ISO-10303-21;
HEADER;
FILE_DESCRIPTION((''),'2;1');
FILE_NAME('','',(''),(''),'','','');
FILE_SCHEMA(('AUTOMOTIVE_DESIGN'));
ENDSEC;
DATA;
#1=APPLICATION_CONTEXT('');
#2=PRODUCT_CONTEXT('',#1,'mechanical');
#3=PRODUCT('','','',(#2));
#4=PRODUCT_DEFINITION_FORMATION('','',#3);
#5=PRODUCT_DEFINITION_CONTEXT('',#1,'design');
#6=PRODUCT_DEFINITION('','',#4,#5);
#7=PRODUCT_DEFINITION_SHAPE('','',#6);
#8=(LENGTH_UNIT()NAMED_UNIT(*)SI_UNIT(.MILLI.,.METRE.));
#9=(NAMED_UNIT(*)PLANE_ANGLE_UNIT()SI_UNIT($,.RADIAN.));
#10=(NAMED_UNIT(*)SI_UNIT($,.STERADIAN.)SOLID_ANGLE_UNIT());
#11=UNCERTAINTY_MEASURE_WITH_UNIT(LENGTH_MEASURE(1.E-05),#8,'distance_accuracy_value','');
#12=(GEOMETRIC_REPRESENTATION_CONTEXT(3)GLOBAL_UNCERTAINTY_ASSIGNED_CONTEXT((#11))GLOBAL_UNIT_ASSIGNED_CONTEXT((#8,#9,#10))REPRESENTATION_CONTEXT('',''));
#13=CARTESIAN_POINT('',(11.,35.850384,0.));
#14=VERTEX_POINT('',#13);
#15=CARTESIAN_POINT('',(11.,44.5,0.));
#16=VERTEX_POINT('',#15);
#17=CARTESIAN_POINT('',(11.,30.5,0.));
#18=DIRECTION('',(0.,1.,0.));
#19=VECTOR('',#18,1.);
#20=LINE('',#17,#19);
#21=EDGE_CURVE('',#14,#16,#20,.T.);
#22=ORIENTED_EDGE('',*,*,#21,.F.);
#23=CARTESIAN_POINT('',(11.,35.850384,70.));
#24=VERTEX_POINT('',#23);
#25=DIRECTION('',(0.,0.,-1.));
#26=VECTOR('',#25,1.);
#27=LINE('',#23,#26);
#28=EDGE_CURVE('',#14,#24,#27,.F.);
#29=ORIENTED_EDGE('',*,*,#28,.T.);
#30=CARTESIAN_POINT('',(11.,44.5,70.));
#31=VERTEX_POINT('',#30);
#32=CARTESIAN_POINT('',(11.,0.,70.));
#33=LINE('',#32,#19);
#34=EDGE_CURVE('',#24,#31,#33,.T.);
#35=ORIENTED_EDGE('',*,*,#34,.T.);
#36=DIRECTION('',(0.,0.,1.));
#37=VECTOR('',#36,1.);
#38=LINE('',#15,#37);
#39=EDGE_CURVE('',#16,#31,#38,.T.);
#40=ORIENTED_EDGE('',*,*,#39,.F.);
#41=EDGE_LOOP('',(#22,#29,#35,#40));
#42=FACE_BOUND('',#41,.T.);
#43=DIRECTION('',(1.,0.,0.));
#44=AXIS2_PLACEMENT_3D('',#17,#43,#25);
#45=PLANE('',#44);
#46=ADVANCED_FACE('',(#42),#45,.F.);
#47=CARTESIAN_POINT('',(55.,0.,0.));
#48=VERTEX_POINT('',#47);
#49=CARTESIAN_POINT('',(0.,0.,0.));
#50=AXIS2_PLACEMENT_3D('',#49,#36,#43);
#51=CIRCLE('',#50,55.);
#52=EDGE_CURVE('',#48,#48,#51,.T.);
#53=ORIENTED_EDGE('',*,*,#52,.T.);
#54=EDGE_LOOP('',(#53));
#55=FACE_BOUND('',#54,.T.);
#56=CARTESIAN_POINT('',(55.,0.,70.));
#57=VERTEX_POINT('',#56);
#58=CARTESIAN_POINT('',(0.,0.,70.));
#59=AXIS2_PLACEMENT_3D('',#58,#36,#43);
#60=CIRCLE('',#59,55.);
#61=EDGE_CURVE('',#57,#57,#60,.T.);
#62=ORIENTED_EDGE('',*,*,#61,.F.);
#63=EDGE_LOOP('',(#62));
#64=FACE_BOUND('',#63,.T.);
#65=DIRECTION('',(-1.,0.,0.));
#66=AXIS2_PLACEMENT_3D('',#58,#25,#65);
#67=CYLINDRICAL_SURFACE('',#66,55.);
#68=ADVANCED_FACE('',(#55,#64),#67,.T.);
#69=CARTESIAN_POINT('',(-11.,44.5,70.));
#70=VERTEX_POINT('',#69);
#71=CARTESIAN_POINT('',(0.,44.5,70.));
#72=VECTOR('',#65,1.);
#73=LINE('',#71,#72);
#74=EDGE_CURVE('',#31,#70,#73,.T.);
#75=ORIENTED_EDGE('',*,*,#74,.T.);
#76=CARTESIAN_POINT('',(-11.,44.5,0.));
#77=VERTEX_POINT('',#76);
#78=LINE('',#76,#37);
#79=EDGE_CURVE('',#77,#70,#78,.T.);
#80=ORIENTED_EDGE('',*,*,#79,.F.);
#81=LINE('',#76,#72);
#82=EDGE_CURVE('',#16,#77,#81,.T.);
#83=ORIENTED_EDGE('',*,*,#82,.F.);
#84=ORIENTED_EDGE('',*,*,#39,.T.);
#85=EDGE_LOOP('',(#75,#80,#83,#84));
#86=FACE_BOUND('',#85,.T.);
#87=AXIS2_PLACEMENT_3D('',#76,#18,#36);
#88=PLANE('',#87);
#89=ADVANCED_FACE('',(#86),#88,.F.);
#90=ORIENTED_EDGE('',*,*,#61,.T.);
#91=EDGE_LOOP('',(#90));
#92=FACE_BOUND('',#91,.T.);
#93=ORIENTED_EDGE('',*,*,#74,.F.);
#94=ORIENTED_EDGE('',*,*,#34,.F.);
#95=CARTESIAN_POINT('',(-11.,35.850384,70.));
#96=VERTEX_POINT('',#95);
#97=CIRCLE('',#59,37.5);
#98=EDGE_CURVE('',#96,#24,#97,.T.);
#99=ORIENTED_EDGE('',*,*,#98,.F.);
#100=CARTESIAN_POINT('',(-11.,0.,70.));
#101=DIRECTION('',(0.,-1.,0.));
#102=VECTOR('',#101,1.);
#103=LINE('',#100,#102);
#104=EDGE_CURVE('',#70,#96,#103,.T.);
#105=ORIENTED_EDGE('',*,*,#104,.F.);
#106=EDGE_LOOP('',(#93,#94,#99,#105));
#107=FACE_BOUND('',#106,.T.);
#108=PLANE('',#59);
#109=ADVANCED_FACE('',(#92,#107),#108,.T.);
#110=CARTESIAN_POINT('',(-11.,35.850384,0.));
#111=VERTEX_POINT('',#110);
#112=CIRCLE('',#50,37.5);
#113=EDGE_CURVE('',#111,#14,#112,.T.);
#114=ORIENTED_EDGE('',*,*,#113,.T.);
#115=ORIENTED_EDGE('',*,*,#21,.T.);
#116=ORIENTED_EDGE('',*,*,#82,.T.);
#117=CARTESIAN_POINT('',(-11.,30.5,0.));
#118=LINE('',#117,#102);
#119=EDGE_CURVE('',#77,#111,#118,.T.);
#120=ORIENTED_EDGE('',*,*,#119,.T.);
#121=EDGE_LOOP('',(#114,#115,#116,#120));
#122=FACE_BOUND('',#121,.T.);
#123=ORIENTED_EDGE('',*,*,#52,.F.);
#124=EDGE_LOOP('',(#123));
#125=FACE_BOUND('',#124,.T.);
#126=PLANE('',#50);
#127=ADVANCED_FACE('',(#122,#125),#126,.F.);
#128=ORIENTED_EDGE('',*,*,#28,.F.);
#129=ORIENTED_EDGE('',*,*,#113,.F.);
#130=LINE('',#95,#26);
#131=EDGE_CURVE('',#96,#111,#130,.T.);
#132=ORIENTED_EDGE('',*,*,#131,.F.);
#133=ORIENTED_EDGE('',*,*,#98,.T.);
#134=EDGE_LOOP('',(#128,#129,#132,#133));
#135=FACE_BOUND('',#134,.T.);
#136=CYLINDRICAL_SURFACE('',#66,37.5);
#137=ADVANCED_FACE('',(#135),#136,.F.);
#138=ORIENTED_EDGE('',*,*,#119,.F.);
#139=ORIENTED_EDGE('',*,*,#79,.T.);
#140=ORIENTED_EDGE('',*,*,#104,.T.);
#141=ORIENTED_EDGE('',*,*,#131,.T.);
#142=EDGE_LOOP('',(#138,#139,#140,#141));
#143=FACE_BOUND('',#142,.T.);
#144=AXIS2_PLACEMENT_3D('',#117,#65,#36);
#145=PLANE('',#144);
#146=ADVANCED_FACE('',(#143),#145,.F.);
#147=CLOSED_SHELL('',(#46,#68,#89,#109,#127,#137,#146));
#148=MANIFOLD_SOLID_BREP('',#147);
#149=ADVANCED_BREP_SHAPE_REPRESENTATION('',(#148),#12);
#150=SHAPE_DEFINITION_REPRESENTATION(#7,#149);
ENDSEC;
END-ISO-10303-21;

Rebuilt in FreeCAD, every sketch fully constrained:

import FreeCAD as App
import Part
import Sketcher

V = App.Vector


def add_polygon(sketch, points):
    """Adds a closed chain of lines whose ends are joined by coincident constraints."""
    first, n = sketch.GeometryCount, len(points)
    for a, b in zip(points, points[1:] + points[:1]):
        sketch.addGeometry(Part.LineSegment(App.Vector(*a, 0), App.Vector(*b, 0)), False)
    for i in range(n):
        sketch.addConstraint(Sketcher.Constraint("Coincident", first + i, 2, first + (i + 1) % n, 1))

doc = App.newDocument("Part")
params = doc.addObject("Spreadsheet::Sheet", "Params")
for row, (alias, value) in enumerate([
    ("sketch1_diameter", "110 mm"),
    ("sketch1_diameter2", "75 mm"),
    ("pad1_length", "70 mm"),
    ("sketch2_width", "22 mm"),
    ("sketch2_height", "14 mm"),
], start=1):
    params.set(f"A{row}", alias)
    params.set(f"B{row}", "=" + value)
    params.setAlias(f"B{row}", alias)

body = doc.addObject("PartDesign::Body", "Body")

# Sketch on XY plane
sketch1 = doc.addObject("Sketcher::SketchObject", "Sketch")
body.addObject(sketch1)
sketch1.AttachmentSupport = (doc.XY_Plane, [""])
sketch1.MapMode = "FlatFace"
sketch1.addGeometry([
    Part.Circle(V(0, 0, 0), V(0, 0, 1), 55),
    Part.Circle(V(0, 0, 0), V(0, 0, 1), 38),
], False)
sketch1.addConstraint([
    Sketcher.Constraint("Coincident", 0, 3, -1, 1),
    Sketcher.Constraint("Coincident", 1, 3, -1, 1),
    Sketcher.Constraint("Diameter", 0, 110.0),
    Sketcher.Constraint("Diameter", 1, 75.0),
])
sketch1.setExpression("Constraints[2]", "Params.sketch1_diameter")
sketch1.setExpression("Constraints[3]", "Params.sketch1_diameter2")
pad1 = doc.addObject("PartDesign::Pad", "Pad")
body.addObject(pad1)
pad1.Profile = sketch1
pad1.setExpression("Length", "Params.pad1_length")

# Sketch on XY plane
sketch2 = doc.addObject("Sketcher::SketchObject", "Sketch001")
body.addObject(sketch2)
sketch2.AttachmentSupport = (doc.XY_Plane, [""])
sketch2.MapMode = "FlatFace"
sketch2.AttachmentOffset = App.Placement(V(0, 0, 70), App.Rotation())
add_polygon(sketch2, [(-11, 44), (-11, 30), (11, 30), (11, 44)])  # lines 0-3
sketch2.addConstraint([
    Sketcher.Constraint("Vertical", 0),
    Sketcher.Constraint("Horizontal", 1),
    Sketcher.Constraint("Vertical", 2),
    Sketcher.Constraint("Horizontal", 3),
    Sketcher.Constraint("DistanceX", 1, 1, 1, 2, 22.0),
    Sketcher.Constraint("DistanceY", 0, 2, 0, 1, 14.0),
    Sketcher.Constraint("DistanceX", 0, 2, -1, 1, 11.0),
    Sketcher.Constraint("DistanceY", -1, 1, 0, 2, 30.5),
])
sketch2.setExpression("Constraints[8]", "Params.sketch2_width")
sketch2.setExpression("Constraints[9]", "Params.sketch2_height")
pocket1 = doc.addObject("PartDesign::Pocket", "Pocket")
body.addObject(pocket1)
pocket1.Profile = sketch2
pocket1.Type = "ThroughAll"
pocket1.Midplane = True

doc.recompute()
